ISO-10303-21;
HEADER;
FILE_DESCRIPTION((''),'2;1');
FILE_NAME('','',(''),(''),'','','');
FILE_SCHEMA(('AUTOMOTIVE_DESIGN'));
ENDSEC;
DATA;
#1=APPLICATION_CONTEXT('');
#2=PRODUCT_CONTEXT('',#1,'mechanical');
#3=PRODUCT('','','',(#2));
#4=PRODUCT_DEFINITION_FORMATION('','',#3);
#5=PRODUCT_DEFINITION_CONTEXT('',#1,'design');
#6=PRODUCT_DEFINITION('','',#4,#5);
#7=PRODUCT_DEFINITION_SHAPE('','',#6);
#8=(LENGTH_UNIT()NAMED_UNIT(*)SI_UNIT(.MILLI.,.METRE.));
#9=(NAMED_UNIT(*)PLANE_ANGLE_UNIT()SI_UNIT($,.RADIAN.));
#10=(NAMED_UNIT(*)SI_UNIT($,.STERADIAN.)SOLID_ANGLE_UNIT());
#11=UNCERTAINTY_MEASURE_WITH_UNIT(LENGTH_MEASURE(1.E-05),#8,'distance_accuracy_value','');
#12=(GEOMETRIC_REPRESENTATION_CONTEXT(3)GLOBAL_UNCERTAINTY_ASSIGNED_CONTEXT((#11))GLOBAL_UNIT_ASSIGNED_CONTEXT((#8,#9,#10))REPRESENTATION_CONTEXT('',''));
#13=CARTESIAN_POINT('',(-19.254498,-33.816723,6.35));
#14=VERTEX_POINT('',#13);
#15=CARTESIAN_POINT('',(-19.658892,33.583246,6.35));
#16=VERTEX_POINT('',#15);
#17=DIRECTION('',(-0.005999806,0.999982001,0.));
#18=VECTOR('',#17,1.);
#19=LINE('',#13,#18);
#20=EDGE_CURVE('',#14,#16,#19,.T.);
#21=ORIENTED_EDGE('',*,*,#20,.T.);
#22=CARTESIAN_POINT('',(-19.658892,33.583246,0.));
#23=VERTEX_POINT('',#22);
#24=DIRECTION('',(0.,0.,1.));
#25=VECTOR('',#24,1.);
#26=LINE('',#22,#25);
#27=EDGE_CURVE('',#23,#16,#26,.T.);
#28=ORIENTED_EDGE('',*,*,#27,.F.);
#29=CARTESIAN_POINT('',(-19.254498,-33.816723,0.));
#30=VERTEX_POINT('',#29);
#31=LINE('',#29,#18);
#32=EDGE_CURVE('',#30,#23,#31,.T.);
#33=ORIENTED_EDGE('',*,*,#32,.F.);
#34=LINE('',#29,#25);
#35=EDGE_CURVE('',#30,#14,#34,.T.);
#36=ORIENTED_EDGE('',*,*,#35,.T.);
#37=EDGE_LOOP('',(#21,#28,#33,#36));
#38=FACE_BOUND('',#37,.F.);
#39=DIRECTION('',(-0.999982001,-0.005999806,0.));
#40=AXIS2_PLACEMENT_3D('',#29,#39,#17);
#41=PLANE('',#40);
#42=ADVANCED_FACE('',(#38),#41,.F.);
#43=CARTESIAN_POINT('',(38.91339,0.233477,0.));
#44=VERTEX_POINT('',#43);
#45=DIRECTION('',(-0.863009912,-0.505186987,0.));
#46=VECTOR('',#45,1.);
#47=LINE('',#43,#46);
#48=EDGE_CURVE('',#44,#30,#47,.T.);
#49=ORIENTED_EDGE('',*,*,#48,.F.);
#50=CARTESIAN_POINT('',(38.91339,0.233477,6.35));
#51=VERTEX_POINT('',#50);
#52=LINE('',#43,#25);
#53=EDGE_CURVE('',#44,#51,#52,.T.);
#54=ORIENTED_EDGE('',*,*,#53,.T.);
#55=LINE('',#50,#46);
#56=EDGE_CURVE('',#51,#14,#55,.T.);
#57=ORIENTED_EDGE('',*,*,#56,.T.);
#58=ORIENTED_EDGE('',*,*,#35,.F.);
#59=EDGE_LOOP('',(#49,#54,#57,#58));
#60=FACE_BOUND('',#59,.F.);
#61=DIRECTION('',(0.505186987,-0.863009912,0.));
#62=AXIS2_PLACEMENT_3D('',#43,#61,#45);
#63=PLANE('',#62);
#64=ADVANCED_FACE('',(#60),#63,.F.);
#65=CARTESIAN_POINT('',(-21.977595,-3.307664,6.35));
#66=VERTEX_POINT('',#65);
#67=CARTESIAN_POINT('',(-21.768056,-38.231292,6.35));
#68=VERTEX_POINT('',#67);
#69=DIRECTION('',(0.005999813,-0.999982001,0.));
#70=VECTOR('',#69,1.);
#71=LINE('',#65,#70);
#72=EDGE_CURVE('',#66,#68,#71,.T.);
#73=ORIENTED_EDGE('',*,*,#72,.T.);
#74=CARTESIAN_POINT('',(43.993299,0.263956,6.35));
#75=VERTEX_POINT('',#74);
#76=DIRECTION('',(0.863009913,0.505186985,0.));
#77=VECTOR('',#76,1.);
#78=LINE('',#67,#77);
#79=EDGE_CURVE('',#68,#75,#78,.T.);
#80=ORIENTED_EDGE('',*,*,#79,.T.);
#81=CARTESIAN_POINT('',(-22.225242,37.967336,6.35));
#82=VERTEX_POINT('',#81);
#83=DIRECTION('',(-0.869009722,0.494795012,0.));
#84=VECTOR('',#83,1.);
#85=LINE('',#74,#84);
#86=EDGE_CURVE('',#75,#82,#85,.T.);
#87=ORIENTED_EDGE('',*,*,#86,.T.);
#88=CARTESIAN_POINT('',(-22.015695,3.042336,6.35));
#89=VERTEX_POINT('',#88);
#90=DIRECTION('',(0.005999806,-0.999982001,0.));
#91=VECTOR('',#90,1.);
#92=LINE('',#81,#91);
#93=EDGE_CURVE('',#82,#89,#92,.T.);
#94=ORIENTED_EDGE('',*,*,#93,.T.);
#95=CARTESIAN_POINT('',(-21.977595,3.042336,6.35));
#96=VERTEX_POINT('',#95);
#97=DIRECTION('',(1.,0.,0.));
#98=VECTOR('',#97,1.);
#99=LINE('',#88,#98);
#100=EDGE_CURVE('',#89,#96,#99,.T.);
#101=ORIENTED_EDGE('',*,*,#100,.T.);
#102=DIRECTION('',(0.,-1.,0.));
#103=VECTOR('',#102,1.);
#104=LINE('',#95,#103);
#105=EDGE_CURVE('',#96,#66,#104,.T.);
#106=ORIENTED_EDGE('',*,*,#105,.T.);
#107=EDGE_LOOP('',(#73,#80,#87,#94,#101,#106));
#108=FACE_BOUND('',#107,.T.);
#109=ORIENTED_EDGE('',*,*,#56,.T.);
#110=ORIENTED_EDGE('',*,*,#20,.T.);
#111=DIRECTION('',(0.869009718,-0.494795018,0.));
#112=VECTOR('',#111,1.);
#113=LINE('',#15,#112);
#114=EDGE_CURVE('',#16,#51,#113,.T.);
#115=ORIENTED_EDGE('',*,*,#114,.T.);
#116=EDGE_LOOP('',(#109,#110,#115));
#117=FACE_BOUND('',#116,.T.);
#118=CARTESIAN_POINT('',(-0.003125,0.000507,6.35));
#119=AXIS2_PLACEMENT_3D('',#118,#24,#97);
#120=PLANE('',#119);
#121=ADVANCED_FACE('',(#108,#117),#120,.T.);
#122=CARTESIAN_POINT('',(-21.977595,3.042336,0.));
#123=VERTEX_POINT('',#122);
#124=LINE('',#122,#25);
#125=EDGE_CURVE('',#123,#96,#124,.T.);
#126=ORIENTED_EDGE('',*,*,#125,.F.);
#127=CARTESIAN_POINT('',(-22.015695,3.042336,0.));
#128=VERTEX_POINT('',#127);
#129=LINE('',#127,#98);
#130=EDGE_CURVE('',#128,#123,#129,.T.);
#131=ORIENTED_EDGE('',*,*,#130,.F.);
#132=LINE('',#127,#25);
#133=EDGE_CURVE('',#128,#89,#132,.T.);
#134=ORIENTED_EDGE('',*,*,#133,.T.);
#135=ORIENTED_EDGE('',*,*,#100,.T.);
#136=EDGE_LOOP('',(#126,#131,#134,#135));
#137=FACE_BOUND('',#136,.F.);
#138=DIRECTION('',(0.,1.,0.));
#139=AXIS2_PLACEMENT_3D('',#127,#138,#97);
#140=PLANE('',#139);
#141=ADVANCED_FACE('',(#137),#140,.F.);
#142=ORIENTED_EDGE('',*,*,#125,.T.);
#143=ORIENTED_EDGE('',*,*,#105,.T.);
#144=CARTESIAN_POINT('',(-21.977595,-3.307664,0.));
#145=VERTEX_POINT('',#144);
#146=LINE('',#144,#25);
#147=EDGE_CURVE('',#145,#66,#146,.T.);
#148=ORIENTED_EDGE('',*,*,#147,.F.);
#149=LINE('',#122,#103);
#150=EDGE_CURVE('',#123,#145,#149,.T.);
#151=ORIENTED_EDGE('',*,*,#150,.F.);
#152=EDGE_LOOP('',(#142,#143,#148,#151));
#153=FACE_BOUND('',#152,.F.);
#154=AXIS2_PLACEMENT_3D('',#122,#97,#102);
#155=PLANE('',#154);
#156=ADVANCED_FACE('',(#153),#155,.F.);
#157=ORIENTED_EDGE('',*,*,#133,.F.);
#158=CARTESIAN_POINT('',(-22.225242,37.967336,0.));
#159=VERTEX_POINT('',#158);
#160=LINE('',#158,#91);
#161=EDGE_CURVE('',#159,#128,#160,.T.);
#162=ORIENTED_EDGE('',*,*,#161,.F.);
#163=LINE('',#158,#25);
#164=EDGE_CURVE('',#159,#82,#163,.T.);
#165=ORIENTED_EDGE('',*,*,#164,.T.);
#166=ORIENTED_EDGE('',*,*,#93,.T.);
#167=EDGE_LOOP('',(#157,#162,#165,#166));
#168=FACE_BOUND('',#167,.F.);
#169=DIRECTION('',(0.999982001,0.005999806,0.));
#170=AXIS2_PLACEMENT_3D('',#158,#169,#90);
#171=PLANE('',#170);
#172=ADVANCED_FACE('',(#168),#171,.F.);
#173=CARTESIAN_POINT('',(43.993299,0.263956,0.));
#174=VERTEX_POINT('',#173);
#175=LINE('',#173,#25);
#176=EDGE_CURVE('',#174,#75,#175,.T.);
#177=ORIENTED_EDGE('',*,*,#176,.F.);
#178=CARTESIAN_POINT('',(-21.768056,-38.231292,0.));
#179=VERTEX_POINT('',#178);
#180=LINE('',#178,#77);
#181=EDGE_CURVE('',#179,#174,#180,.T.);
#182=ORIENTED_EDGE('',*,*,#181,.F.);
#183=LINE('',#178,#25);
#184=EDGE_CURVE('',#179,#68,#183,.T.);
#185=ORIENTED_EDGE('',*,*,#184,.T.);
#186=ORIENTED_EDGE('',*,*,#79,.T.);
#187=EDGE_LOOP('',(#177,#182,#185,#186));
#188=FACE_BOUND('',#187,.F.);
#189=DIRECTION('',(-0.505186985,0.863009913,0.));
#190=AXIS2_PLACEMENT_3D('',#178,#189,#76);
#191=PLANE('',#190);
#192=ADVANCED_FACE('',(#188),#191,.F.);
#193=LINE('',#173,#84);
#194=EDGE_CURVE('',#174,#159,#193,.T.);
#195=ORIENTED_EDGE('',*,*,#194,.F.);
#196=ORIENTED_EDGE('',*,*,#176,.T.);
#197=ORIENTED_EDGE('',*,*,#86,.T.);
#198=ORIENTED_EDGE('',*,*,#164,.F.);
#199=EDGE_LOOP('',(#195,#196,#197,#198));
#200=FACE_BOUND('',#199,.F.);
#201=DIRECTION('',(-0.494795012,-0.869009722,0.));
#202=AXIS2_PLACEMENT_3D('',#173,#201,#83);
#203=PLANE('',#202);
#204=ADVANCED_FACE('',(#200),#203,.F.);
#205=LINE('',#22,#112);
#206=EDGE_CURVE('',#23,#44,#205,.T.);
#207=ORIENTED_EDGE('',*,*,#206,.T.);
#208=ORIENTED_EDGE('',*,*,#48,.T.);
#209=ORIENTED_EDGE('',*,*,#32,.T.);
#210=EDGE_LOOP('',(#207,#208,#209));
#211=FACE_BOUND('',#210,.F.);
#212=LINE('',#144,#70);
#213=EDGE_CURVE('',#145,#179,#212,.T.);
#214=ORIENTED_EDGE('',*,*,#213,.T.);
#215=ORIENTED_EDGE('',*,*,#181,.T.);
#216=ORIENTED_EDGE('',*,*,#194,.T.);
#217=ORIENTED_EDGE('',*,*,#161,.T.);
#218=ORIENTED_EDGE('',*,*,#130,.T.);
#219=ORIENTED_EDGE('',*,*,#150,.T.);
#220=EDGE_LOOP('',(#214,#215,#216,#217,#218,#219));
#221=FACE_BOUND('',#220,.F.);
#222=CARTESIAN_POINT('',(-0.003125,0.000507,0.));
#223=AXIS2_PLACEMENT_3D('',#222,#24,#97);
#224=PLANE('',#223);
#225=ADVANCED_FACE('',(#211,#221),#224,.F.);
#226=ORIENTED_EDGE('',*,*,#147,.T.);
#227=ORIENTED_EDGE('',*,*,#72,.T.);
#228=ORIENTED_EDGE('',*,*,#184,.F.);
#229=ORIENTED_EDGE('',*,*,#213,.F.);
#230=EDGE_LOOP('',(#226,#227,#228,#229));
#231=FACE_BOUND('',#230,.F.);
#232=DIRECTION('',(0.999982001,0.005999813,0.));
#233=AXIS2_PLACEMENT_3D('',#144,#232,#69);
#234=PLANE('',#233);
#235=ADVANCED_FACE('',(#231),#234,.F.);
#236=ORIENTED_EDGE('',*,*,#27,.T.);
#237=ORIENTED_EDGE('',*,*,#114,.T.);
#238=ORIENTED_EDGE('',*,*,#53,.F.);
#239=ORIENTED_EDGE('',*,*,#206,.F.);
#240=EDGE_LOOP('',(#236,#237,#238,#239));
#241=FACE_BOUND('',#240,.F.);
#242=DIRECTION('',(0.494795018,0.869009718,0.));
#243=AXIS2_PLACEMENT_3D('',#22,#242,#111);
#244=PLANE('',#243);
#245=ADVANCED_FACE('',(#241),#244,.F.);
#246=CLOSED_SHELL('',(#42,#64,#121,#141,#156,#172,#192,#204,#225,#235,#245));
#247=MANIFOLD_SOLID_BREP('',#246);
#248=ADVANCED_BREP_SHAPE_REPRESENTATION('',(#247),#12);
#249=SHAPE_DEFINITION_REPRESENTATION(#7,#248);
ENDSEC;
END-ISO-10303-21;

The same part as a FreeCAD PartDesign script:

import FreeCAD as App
import Part
import Sketcher
Q = App.Units.Quantity

doc = App.newDocument("Part")
params = doc.addObject("Spreadsheet::Sheet", "Params")
for row, (alias, value) in enumerate([
    ("sketch1_length", "3 in"),
    ("sketch1_height", "0.25 in"),
    ("pad1_length", "0.25 in"),
], start=1):
    params.set(f"A{row}", alias)
    params.set(f"B{row}", "=" + value)
    params.setAlias(f"B{row}", alias)

body = doc.addObject("PartDesign::Body", "Body")

# Sketch on XY plane
sketch1 = body.newObject("Sketcher::SketchObject", "Sketch")
sketch1.AttachmentSupport = (doc.getObject("XY_Plane"), [""])
sketch1.MapMode = "FlatFace"
sketch1.addGeometry(Part.LineSegment(App.Vector(43.993299, 0.263956, 0), App.Vector(-22.225242, 37.967336, 0)), False)
sketch1.addGeometry(Part.LineSegment(App.Vector(-22.225242, 37.967336, 0), App.Vector(-22.015695, 3.042336, 0)), False)
sketch1.addGeometry(Part.LineSegment(App.Vector(-22.015695, 3.042336, 0), App.Vector(-21.977595, 3.042336, 0)), False)
sketch1.addGeometry(Part.LineSegment(App.Vector(-21.977595, 3.042336, 0), App.Vector(-21.977595, -3.307664, 0)), False)
sketch1.addGeometry(Part.LineSegment(App.Vector(-21.977595, -3.307664, 0), App.Vector(-21.768056, -38.231292, 0)), False)
sketch1.addGeometry(Part.LineSegment(App.Vector(-21.768056, -38.231292, 0), App.Vector(43.993299, 0.263956, 0)), False)
sketch1.addGeometry(Part.LineSegment(App.Vector(-19.658892, 33.583246, 0), App.Vector(38.91339, 0.233477, 0)), False)
sketch1.addGeometry(Part.LineSegment(App.Vector(38.91339, 0.233477, 0), App.Vector(-19.254498, -33.816723, 0)), False)
sketch1.addGeometry(Part.LineSegment(App.Vector(-19.254498, -33.816723, 0), App.Vector(-19.658892, 33.583246, 0)), False)
sketch1.addConstraint(Sketcher.Constraint("Coincident", 0, 2, 1, 1))
sketch1.addConstraint(Sketcher.Constraint("Coincident", 1, 2, 2, 1))
sketch1.addConstraint(Sketcher.Constraint("Coincident", 2, 2, 3, 1))
sketch1.addConstraint(Sketcher.Constraint("Coincident", 3, 2, 4, 1))
sketch1.addConstraint(Sketcher.Constraint("Coincident", 4, 2, 5, 1))
sketch1.addConstraint(Sketcher.Constraint("Coincident", 5, 2, 0, 1))
sketch1.addConstraint(Sketcher.Constraint("Coincident", 6, 2, 7, 1))
sketch1.addConstraint(Sketcher.Constraint("Coincident", 7, 2, 8, 1))
sketch1.addConstraint(Sketcher.Constraint("Coincident", 8, 2, 6, 1))
sketch1.addConstraint(Sketcher.Constraint("Horizontal", 2))
sketch1.addConstraint(Sketcher.Constraint("Vertical", 3))
sketch1.addConstraint(Sketcher.Constraint("Parallel", 1, 4))
sketch1.addConstraint(Sketcher.Constraint("Parallel", 0, 6))
sketch1.addConstraint(Sketcher.Constraint("Parallel", 5, 7))
sketch1.addConstraint(Sketcher.Constraint("Parallel", 4, 8))
sketch1.addConstraint(Sketcher.Constraint("Equal", 0, 5))
sketch1.addConstraint(Sketcher.Constraint("Equal", 6, 7))
sketch1.addConstraint(Sketcher.Constraint("Equal", 7, 8))
sketch1.addConstraint(Sketcher.Constraint("Distance", 0, Q("3 in")))
sketch1.addConstraint(Sketcher.Constraint("DistanceY", 3, 2, 3, 1, Q("0.25 in")))
sketch1.addConstraint(Sketcher.Constraint("DistanceX", 2, 1, 2, 2, Q("0.0015 in")))
sketch1.addConstraint(Sketcher.Constraint("DistanceY", 1, 2, 0, 2, Q("1.375 in")))
sketch1.addConstraint(Sketcher.Constraint("DistanceY", 6, 2, 5, 2, Q("0.0012 in")))
sketch1.addConstraint(Sketcher.Constraint("DistanceX", -1, 1, 5, 2, 43.993299))
sketch1.addConstraint(Sketcher.Constraint("DistanceX", 7, 2, -1, 1, 19.254498))
sketch1.addConstraint(Sketcher.Constraint("DistanceY", 7, 2, 6, 2, 34.0502))
sketch1.addConstraint(Sketcher.Constraint("DistanceY", -1, 1, 0, 2, 37.967336))
sketch1.setExpression("Constraints[18]", "Params.sketch1_length")
sketch1.setExpression("Constraints[19]", "Params.sketch1_height")
pad1 = body.newObject("PartDesign::Pad", "Pad")
pad1.Profile = sketch1
pad1.setExpression("Length", "Params.pad1_length")

doc.recompute()
